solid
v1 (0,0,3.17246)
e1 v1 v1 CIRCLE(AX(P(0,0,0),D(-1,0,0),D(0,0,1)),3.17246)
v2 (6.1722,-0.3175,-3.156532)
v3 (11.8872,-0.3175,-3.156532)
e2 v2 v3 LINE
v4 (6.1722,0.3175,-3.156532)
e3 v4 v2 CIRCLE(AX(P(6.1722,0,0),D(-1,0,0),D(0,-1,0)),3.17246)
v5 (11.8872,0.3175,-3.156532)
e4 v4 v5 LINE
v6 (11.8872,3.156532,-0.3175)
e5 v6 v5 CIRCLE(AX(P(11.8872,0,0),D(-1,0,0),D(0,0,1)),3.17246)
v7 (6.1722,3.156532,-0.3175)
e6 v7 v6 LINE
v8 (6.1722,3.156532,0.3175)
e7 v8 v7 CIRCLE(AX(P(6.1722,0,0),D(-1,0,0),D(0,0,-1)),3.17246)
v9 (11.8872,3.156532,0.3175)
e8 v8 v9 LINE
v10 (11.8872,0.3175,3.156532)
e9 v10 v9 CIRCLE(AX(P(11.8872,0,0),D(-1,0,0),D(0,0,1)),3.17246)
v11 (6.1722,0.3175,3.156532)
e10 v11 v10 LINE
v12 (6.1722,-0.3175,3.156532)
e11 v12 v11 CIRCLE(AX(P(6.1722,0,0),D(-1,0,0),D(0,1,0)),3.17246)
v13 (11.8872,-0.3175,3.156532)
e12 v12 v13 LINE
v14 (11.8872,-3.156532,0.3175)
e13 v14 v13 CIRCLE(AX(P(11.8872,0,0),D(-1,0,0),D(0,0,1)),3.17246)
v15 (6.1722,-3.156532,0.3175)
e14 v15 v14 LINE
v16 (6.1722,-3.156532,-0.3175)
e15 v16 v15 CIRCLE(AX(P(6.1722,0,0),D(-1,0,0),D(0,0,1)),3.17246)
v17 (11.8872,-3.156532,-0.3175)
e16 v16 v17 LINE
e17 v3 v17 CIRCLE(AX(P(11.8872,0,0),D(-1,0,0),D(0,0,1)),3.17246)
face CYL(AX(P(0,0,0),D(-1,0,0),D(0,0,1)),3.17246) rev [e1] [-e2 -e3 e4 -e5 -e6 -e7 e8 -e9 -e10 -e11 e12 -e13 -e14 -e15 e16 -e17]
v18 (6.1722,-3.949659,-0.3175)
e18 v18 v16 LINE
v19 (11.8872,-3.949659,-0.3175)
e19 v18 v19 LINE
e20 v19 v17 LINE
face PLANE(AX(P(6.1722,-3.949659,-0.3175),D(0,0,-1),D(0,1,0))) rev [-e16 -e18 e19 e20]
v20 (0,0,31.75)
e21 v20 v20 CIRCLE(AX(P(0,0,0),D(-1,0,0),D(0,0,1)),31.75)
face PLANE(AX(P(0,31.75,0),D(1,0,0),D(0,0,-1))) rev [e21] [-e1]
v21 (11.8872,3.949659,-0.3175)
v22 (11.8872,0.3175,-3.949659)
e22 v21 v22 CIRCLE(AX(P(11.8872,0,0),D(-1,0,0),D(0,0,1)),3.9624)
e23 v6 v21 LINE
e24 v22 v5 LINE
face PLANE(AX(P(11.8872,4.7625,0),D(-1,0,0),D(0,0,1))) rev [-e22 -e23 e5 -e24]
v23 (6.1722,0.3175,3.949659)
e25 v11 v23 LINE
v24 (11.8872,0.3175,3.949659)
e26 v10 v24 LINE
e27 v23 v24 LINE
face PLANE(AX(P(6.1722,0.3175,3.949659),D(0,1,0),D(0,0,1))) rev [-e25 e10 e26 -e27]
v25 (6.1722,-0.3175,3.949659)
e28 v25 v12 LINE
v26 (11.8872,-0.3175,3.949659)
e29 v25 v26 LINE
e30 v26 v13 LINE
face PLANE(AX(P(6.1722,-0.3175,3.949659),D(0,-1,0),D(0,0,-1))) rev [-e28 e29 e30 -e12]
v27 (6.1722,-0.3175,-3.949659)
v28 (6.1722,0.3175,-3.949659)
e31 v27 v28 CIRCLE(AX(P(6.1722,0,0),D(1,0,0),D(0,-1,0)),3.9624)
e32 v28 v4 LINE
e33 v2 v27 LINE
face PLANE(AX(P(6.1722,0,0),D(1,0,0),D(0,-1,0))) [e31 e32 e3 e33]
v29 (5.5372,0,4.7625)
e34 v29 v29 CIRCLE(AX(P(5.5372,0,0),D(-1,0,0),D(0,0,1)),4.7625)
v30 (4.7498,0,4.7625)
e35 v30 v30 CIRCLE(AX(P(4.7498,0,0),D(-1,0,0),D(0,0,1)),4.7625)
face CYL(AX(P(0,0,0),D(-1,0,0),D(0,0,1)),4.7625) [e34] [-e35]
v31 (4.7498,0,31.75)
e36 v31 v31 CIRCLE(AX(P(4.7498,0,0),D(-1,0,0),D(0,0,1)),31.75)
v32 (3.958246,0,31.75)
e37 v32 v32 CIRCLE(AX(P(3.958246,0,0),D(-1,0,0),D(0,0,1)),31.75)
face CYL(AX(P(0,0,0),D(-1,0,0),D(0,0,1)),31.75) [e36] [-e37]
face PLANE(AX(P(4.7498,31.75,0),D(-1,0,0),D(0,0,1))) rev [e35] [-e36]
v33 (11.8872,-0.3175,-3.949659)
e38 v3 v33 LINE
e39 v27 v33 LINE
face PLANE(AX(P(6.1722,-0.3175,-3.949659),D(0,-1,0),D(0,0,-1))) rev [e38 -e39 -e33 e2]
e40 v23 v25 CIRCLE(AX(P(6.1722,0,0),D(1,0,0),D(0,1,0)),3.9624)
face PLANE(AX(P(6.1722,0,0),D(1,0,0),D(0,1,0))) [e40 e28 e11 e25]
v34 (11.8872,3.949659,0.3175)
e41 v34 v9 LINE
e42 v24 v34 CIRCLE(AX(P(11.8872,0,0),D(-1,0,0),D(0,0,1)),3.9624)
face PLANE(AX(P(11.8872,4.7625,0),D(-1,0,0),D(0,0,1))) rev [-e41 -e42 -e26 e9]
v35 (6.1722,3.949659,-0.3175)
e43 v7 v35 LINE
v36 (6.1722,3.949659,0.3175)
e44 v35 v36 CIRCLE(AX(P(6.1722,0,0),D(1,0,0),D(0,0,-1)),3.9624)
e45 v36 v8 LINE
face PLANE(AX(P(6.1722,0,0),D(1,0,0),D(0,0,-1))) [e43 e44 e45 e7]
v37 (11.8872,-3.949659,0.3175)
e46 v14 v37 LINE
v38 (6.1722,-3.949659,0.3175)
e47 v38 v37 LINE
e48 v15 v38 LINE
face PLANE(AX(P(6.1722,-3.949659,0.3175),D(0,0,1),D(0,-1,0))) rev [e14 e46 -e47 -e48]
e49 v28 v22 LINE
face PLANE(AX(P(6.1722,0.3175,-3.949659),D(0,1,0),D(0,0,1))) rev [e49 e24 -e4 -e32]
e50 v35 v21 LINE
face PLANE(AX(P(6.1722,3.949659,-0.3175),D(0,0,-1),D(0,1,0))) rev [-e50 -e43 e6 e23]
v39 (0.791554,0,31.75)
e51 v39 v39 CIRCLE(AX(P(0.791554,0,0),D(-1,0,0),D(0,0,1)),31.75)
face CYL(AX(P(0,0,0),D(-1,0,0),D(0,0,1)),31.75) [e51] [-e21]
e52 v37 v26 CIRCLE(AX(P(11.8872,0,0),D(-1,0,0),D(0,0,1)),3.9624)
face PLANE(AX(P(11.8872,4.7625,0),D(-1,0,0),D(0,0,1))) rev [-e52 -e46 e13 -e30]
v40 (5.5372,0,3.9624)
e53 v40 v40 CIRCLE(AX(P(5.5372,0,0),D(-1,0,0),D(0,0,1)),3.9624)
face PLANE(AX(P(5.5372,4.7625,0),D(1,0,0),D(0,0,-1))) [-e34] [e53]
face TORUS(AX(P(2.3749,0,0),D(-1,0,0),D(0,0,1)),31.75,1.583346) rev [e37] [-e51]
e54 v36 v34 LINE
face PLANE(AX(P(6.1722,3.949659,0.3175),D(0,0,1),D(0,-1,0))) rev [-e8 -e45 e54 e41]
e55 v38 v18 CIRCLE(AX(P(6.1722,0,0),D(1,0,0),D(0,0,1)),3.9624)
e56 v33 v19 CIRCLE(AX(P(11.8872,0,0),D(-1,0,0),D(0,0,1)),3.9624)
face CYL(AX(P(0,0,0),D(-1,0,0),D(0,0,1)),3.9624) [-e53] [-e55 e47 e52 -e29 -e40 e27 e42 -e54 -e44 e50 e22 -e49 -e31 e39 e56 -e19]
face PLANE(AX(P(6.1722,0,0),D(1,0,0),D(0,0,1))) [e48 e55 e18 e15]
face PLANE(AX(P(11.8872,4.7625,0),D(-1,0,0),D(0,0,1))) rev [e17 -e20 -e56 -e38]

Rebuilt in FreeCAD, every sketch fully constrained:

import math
import FreeCAD as App
import Part
import Sketcher
from FreeCAD import Vector
Q = App.Units.Quantity


def add_polygon(sketch, points):
    """Adds a closed chain of lines whose ends are joined by coincident constraints."""
    first, n = sketch.GeometryCount, len(points)
    for a, b in zip(points, points[1:] + points[:1]):
        sketch.addGeometry(Part.LineSegment(App.Vector(*a, 0), App.Vector(*b, 0)), False)
    for i in range(n):
        sketch.addConstraint(Sketcher.Constraint("Coincident", first + i, 2, first + (i + 1) % n, 1))

doc = App.newDocument("Part")
body = doc.addObject("PartDesign::Body", "Body")

sketch1 = body.newObject("Sketcher::SketchObject", "Sketch")
sketch1.AttachmentSupport = (doc.getObject("XY_Plane"), [""])
sketch1.MapMode = "FlatFace"
sketch1.addGeometry(Part.LineSegment(Vector(0.791554, 31.75, 0), Vector(0, 31.75, 0)), False)
sketch1.addGeometry(Part.LineSegment(Vector(0, 31.75, 0), Vector(0, 3.17246, 0)), False)
sketch1.addGeometry(Part.LineSegment(Vector(0, 3.17246, 0), Vector(11.8872, 3.17246, 0)), False)
sketch1.addGeometry(Part.LineSegment(Vector(11.8872, 3.17246, 0), Vector(11.8872, 4.7625, 0)), False)
sketch1.addGeometry(Part.LineSegment(Vector(11.8872, 4.7625, 0), Vector(4.7498, 4.7625, 0)), False)
sketch1.addGeometry(Part.LineSegment(Vector(4.7498, 4.7625, 0), Vector(4.7498, 31.75, 0)), False)
sketch1.addGeometry(Part.LineSegment(Vector(4.7498, 31.75, 0), Vector(3.958246, 31.75, 0)), False)
sketch1.addGeometry(Part.ArcOfCircle(Part.Circle(Vector(2.3749, 31.75, 0), Vector(0, 0, 1), 1.583346), math.radians(180), math.radians(360)), False)
sketch1.addConstraint(Sketcher.Constraint("Coincident", 0, 2, 1, 1))
sketch1.addConstraint(Sketcher.Constraint("Coincident", 1, 2, 2, 1))
sketch1.addConstraint(Sketcher.Constraint("Coincident", 2, 2, 3, 1))
sketch1.addConstraint(Sketcher.Constraint("Coincident", 3, 2, 4, 1))
sketch1.addConstraint(Sketcher.Constraint("Coincident", 4, 2, 5, 1))
sketch1.addConstraint(Sketcher.Constraint("Coincident", 5, 2, 6, 1))
sketch1.addConstraint(Sketcher.Constraint("Coincident", 6, 2, 7, 2))
sketch1.addConstraint(Sketcher.Constraint("Coincident", 7, 1, 0, 1))
sketch1.addConstraint(Sketcher.Constraint("Horizontal", 0))
sketch1.addConstraint(Sketcher.Constraint("Vertical", 1))
sketch1.addConstraint(Sketcher.Constraint("Horizontal", 2))
sketch1.addConstraint(Sketcher.Constraint("Vertical", 3))
sketch1.addConstraint(Sketcher.Constraint("Horizontal", 4))
sketch1.addConstraint(Sketcher.Constraint("Vertical", 5))
sketch1.addConstraint(Sketcher.Constraint("Horizontal", 6))
sketch1.addConstraint(Sketcher.Constraint("PointOnObject", 0, 2, -2))
sketch1.addConstraint(Sketcher.Constraint("Horizontal", 7, 3, 0, 2))
sketch1.addConstraint(Sketcher.Constraint("Horizontal", 0, 2, 5, 2))
sketch1.addConstraint(Sketcher.Constraint("Equal", 0, 6))
sketch1.addConstraint(Sketcher.Constraint("DistanceX", 2, 1, 2, 2, Q("0.468 in")))
sketch1.addConstraint(Sketcher.Constraint("DistanceX", 4, 2, 4, 1, Q("0.281 in")))
sketch1.addConstraint(Sketcher.Constraint("DistanceY", 5, 1, 5, 2, Q("1.0625 in")))
sketch1.addConstraint(Sketcher.Constraint("DistanceY", -1, 1, 7, 3, Q("1.25 in")))
sketch1.addConstraint(Sketcher.Constraint("DistanceY", 1, 2, 1, 1, Q("1.1251 in")))
sketch1.addConstraint(Sketcher.Constraint("Radius", 7, 1.583346))
revolution = body.newObject("PartDesign::Revolution", "Revolution")
revolution.Profile = sketch1
revolution.ReferenceAxis = (sketch1, ["H_Axis"])
revolution.Angle = 360

sketch2 = body.newObject("Sketcher::SketchObject", "Sketch001")
sketch2.AttachmentSupport = (doc.getObject("XY_Plane"), [""])
sketch2.MapMode = "FlatFace"
add_polygon(sketch2, [(5.5372, 4.7625), (5.5372, 3.9624), (11.8872, 3.9624), (11.8872, 4.7625)])
sketch2.addConstraint(Sketcher.Constraint("Vertical", 0))
sketch2.addConstraint(Sketcher.Constraint("Horizontal", 1))
sketch2.addConstraint(Sketcher.Constraint("Vertical", 2))
sketch2.addConstraint(Sketcher.Constraint("Horizontal", 3))
sketch2.addConstraint(Sketcher.Constraint("DistanceX", 1, 1, 1, 2, Q("0.25 in")))
sketch2.addConstraint(Sketcher.Constraint("DistanceY", 0, 2, 0, 1, Q("0.0315 in")))
sketch2.addConstraint(Sketcher.Constraint("DistanceX", -1, 1, 0, 2, Q("0.218 in")))
sketch2.addConstraint(Sketcher.Constraint("DistanceY", -1, 1, 0, 2, Q("0.156 in")))
groove = body.newObject("PartDesign::Groove", "Groove")
groove.Profile = sketch2
groove.ReferenceAxis = (sketch2, ["H_Axis"])
groove.Angle = 360

sketch3 = body.newObject("Sketcher::SketchObject", "Sketch002")
sketch3.AttachmentSupport = (doc.getObject("YZ_Plane"), [""])
sketch3.MapMode = "FlatFace"
sketch3.AttachmentOffset = App.Placement(Vector(0, 0, 0.243 * 25.4), App.Rotation())
sketch3.addGeometry(Part.LineSegment(Vector(3.949659, 0.3175, 0), Vector(3.156532, 0.3175, 0)), False)
sketch3.addGeometry(Part.ArcOfCircle(Part.Circle(Vector(0, 0, 0), Vector(0, 0, 1), 3.17246), math.radians(-5.743781), math.radians(5.743781)), False)
sketch3.addGeometry(Part.LineSegment(Vector(3.156532, -0.3175, 0), Vector(3.949659, -0.3175, 0)), False)
sketch3.addGeometry(Part.ArcOfCircle(Part.Circle(Vector(0, 0, 0), Vector(0, 0, 1), 3.9624), math.radians(-4.595935), math.radians(4.595935)), False)
sketch3.addConstraint(Sketcher.Constraint("Coincident", 0, 2, 1, 2))
sketch3.addConstraint(Sketcher.Constraint("Coincident", 1, 1, 2, 1))
sketch3.addConstraint(Sketcher.Constraint("Coincident", 2, 2, 3, 1))
sketch3.addConstraint(Sketcher.Constraint("Coincident", 3, 2, 0, 1))
sketch3.addConstraint(Sketcher.Constraint("Horizontal", 0))
sketch3.addConstraint(Sketcher.Constraint("Horizontal", 2))
sketch3.addConstraint(Sketcher.Constraint("Coincident", 1, 3, -1, 1))
sketch3.addConstraint(Sketcher.Constraint("Coincident", 3, 3, -1, 1))
sketch3.addConstraint(Sketcher.Constraint("Vertical", 0, 2, 1, 1))
sketch3.addConstraint(Sketcher.Constraint("Radius", 3, Q("0.156 in")))
sketch3.addConstraint(Sketcher.Constraint("Radius", 1, Q("0.1249 in")))
sketch3.addConstraint(Sketcher.Constraint("DistanceY", 1, 1, 0, 2, Q("0.025 in")))
pocket1 = body.newObject("PartDesign::Pocket", "Pocket")
pocket1.Profile = sketch3
pocket1.Length = Q("0.225 in")
pocket1.Reversed = True
doc.recompute()

polarpattern = body.newObject("PartDesign::PolarPattern", "PolarPattern")
polarpattern.Originals = [pocket1]
polarpattern.Axis = (doc.getObject("X_Axis"), [""])
polarpattern.Angle = 360
polarpattern.Occurrences = 4
body.Tip = polarpattern

doc.recompute()
